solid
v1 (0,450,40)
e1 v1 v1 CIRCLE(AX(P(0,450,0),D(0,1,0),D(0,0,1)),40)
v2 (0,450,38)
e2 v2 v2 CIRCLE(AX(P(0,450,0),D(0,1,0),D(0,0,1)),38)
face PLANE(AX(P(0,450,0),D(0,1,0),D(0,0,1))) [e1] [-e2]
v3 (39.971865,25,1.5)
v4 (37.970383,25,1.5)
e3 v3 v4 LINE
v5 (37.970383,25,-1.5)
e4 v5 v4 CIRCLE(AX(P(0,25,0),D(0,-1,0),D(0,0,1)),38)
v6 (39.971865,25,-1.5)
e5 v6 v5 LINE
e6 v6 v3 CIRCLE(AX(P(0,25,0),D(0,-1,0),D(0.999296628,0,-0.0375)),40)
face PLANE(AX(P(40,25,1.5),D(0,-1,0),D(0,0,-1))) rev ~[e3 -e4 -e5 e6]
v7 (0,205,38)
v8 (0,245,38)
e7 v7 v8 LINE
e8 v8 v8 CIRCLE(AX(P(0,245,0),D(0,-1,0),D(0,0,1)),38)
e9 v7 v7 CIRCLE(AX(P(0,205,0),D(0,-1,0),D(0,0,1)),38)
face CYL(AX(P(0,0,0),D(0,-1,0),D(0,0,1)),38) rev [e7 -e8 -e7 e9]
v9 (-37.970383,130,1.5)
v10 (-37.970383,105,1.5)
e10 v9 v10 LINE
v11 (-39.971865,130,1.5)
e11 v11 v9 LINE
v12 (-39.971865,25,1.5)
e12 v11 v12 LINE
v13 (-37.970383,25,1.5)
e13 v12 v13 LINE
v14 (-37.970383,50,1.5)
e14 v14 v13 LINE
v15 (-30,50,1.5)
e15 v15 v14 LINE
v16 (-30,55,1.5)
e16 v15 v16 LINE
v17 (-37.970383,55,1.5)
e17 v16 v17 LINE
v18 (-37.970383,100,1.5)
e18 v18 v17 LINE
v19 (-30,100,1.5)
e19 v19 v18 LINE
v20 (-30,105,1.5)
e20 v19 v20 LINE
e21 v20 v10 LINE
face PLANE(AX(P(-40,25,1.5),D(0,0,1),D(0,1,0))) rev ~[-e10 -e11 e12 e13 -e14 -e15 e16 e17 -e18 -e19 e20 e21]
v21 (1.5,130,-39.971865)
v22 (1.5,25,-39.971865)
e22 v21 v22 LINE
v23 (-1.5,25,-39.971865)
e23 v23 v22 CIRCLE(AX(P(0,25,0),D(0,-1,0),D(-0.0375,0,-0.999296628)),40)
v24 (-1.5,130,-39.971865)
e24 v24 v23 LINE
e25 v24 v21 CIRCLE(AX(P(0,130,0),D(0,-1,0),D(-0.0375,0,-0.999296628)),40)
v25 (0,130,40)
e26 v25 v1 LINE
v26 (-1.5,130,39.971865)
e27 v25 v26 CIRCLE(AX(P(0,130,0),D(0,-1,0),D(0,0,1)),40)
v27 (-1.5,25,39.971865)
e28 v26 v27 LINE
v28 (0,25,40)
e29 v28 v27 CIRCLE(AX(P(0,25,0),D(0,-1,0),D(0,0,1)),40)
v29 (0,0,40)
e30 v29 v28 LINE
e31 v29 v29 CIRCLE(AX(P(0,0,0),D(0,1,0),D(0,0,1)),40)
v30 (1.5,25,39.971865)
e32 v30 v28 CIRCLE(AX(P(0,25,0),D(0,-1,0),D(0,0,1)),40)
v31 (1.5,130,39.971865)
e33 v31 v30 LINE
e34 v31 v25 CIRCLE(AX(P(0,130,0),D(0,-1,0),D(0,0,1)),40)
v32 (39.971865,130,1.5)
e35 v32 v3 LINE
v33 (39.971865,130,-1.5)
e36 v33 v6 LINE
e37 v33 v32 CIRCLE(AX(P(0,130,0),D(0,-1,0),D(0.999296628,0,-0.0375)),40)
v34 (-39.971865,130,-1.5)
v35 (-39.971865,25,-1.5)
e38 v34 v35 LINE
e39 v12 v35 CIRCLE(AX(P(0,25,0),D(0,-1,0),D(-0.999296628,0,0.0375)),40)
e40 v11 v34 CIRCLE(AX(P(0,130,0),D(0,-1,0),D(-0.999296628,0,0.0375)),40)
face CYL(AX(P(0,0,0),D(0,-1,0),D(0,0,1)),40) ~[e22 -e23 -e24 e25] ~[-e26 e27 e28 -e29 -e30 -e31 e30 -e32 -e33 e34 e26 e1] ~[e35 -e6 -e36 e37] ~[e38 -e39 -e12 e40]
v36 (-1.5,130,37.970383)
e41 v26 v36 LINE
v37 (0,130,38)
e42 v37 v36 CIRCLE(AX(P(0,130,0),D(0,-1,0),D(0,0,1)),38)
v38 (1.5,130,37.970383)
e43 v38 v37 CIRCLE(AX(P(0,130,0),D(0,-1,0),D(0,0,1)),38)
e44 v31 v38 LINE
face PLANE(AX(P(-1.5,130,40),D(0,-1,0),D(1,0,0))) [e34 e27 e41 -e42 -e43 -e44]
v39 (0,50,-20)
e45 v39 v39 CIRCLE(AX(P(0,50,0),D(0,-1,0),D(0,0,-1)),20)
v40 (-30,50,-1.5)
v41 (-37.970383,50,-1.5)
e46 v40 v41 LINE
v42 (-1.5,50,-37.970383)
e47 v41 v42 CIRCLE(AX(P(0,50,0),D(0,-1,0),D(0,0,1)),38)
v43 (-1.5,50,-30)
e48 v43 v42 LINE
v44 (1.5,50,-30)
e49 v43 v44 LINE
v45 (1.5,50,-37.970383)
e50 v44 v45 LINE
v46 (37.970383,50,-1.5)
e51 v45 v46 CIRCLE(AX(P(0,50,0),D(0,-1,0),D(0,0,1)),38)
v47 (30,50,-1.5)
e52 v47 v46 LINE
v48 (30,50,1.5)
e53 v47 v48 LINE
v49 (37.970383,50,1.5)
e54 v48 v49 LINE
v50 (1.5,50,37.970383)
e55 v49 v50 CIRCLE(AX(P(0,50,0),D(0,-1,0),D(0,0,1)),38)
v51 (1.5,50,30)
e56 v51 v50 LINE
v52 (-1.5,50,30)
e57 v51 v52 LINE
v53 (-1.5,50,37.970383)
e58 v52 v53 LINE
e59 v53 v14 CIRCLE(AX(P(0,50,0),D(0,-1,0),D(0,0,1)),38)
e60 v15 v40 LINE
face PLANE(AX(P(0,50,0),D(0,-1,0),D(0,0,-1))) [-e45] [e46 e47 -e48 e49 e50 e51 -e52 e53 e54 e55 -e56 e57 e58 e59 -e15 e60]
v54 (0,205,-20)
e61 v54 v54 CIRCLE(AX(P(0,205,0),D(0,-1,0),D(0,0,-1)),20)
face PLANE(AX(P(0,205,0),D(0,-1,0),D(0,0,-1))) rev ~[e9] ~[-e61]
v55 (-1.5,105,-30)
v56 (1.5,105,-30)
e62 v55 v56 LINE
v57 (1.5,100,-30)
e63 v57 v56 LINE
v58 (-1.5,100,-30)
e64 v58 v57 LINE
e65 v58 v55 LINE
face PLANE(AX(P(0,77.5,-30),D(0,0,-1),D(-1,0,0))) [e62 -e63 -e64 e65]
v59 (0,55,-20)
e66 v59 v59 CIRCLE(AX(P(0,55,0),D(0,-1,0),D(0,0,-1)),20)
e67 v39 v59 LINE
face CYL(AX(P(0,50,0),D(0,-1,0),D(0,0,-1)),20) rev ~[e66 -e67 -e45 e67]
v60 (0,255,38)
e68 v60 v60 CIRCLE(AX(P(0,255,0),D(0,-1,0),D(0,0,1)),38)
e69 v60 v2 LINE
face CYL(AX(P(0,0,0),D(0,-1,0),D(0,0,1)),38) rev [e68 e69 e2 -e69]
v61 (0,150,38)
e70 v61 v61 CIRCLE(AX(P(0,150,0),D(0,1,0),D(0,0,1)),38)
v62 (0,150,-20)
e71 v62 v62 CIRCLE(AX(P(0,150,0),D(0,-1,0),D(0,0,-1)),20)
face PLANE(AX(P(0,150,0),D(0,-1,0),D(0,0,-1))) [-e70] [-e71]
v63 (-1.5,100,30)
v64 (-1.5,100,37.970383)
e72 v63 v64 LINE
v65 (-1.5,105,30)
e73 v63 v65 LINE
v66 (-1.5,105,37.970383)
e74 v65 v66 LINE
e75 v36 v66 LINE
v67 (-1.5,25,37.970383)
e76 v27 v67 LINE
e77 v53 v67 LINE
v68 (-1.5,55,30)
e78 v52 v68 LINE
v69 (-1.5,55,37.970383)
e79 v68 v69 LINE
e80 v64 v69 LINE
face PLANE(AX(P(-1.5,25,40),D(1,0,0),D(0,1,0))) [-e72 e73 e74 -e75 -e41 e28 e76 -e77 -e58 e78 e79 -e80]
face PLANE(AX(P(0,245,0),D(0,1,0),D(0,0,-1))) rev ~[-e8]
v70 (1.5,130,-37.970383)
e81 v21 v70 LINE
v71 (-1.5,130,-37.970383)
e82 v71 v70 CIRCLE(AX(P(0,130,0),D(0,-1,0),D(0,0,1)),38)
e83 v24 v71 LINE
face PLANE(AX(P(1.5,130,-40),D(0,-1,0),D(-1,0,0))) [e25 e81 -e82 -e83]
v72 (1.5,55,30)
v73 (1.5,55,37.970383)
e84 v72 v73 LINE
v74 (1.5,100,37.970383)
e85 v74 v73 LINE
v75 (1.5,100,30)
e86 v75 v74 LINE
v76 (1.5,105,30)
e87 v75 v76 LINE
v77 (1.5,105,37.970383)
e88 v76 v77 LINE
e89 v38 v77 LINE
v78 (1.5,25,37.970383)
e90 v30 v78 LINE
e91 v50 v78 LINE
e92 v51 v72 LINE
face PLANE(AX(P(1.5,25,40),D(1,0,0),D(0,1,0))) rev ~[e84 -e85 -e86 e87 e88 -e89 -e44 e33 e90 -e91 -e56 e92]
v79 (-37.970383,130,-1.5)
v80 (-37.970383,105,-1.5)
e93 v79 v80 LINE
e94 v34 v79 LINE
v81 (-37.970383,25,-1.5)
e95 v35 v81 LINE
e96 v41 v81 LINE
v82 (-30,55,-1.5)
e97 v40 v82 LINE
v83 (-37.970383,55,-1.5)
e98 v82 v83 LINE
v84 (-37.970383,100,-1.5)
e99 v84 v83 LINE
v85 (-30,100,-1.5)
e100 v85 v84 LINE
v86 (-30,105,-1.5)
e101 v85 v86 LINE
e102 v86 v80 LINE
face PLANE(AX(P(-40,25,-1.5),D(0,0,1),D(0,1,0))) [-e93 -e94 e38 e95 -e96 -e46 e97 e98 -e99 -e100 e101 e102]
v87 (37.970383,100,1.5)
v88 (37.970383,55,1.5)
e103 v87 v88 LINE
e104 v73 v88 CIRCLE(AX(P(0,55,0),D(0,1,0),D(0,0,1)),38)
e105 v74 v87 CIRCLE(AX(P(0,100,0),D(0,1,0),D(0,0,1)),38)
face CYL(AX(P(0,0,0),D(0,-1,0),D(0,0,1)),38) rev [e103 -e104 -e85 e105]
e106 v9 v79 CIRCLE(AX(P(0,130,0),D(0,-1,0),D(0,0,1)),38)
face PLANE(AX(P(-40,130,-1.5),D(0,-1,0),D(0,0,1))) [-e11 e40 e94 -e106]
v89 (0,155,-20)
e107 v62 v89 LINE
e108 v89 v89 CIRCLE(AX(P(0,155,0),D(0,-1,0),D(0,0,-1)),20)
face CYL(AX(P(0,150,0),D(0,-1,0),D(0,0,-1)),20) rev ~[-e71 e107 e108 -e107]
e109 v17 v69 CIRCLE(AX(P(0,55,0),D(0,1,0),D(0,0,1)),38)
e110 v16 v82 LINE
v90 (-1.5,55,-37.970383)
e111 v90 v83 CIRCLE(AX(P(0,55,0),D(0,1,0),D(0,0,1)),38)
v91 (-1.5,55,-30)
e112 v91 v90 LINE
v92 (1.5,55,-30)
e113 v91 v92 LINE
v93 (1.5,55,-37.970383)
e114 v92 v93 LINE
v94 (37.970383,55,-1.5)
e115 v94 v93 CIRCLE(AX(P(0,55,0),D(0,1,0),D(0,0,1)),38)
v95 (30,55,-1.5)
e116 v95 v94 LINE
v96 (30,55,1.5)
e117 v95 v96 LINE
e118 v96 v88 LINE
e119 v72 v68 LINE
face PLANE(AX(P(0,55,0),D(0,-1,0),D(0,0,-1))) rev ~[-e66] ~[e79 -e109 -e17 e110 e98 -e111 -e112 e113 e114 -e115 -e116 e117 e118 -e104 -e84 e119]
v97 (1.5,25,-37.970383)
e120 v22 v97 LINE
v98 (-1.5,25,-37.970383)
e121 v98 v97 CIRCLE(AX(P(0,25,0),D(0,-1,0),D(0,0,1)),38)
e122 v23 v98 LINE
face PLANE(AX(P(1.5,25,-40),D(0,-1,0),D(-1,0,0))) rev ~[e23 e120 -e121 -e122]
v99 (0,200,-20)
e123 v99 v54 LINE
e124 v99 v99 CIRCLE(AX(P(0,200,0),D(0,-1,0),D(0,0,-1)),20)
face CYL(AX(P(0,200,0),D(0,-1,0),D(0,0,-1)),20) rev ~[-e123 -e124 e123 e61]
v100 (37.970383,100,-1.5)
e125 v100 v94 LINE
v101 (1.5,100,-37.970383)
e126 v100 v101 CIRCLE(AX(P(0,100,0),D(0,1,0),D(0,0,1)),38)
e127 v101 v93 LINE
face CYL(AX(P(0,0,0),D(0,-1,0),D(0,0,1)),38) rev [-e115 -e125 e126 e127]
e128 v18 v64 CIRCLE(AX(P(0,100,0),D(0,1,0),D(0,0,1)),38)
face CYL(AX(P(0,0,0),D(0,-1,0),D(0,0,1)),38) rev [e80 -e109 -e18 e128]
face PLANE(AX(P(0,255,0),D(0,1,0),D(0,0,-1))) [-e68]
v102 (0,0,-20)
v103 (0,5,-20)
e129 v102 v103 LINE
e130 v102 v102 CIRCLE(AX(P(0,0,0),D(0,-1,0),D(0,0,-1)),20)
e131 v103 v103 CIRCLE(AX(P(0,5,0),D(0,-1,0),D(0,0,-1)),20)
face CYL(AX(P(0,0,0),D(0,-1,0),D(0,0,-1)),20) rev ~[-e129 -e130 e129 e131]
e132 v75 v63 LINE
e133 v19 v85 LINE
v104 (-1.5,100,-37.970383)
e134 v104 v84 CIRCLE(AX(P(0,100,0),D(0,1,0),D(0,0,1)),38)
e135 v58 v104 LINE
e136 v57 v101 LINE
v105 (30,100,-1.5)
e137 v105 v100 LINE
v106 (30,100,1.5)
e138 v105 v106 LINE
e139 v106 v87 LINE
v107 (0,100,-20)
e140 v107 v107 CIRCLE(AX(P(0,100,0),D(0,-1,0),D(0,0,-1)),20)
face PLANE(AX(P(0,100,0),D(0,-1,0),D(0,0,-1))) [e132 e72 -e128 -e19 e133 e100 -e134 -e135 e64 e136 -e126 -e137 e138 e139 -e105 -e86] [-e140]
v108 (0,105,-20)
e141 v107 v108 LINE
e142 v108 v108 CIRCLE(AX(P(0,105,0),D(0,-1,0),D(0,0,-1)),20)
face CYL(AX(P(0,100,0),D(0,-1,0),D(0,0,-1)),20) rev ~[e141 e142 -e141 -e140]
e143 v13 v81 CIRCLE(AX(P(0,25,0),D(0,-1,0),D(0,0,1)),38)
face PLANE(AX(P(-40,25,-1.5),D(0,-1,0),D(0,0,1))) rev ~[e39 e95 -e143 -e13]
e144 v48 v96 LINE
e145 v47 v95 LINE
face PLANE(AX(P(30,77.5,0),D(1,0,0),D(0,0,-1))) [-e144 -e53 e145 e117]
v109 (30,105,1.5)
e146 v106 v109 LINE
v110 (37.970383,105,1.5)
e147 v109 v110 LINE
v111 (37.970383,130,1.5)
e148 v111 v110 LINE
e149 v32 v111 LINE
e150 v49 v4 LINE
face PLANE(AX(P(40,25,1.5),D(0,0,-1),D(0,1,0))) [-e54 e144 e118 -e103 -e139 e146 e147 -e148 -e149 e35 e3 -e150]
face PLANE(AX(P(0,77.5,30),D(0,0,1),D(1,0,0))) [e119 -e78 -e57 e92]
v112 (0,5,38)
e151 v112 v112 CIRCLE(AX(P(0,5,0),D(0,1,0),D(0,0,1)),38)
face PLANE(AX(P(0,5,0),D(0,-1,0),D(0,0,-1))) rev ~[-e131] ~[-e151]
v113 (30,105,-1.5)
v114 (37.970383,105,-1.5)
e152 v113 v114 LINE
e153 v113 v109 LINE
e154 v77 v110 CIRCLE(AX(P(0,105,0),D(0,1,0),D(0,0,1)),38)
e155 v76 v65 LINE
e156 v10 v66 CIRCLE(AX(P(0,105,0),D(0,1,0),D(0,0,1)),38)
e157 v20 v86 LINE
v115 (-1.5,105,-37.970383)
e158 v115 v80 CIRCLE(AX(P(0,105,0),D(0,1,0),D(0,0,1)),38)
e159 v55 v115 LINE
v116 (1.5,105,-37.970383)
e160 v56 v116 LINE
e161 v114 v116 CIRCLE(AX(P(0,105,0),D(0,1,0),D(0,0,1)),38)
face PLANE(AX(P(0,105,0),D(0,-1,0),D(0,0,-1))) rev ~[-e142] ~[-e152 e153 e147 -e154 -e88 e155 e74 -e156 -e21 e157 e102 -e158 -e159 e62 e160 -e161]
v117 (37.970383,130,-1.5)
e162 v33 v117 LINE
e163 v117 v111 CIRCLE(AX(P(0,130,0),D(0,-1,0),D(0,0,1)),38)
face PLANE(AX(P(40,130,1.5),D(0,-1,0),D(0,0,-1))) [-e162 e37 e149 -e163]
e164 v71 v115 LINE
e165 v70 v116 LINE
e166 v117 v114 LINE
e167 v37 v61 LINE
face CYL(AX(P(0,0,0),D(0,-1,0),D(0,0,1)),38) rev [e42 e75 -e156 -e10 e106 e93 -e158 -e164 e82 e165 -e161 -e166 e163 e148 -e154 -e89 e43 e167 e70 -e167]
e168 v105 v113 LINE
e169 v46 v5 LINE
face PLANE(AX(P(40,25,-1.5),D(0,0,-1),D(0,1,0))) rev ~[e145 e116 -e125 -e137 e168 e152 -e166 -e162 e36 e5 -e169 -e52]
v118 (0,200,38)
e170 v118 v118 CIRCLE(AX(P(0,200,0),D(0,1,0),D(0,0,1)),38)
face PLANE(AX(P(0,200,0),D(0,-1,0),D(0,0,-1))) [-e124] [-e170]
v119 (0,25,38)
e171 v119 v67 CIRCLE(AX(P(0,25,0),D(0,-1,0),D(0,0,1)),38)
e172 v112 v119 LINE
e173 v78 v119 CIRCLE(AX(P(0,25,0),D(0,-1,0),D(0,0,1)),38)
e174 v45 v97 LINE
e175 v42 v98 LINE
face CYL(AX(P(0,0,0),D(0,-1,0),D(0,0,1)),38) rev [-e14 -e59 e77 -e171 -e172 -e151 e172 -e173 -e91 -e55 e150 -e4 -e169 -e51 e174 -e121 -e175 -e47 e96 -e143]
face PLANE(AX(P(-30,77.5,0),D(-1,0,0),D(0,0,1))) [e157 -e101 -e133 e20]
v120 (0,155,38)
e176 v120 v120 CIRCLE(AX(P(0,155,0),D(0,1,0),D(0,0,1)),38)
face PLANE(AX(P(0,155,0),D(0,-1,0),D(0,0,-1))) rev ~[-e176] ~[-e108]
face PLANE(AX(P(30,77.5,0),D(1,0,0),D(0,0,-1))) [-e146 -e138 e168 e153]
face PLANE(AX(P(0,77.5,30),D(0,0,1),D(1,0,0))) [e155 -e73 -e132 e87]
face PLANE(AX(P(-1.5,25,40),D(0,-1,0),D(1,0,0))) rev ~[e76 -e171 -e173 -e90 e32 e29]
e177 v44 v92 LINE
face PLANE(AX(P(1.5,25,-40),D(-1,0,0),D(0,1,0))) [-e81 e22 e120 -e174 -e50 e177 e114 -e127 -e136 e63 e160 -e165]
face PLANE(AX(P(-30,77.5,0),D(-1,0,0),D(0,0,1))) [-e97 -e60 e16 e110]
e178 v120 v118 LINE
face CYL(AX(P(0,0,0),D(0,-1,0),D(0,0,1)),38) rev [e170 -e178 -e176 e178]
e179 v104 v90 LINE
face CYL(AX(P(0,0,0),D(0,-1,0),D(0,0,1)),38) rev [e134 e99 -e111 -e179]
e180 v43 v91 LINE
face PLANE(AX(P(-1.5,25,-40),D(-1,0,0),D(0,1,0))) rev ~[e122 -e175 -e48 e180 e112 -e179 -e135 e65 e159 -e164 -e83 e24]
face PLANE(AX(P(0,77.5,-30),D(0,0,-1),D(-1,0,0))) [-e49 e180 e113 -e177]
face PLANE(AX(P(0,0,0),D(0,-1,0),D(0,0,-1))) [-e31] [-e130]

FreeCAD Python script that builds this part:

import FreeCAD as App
import Part
import Sketcher
from FreeCAD import Vector
Q = App.Units.Quantity


def add_polygon(sketch, points):
    """Adds a closed chain of lines whose ends are joined by coincident constraints."""
    first, n = sketch.GeometryCount, len(points)
    for a, b in zip(points, points[1:] + points[:1]):
        sketch.addGeometry(Part.LineSegment(App.Vector(*a, 0), App.Vector(*b, 0)), False)
    for i in range(n):
        sketch.addConstraint(Sketcher.Constraint("Coincident", first + i, 2, first + (i + 1) % n, 1))

doc = App.newDocument("Part")
body = doc.addObject("PartDesign::Body", "Body")

sketch1 = body.newObject("Sketcher::SketchObject", "Sketch")
sketch1.AttachmentSupport = (doc.getObject("XZ_Plane"), [""])
sketch1.MapMode = "FlatFace"
sketch1.addGeometry([
    Part.Circle(Vector(0, 0, 0), Vector(0, 0, 1), 40),
    Part.Circle(Vector(0, 0, 0), Vector(0, 0, 1), 38),
], False)
sketch1.addConstraint([
    Sketcher.Constraint("Coincident", 0, 3, -1, 1),
    Sketcher.Constraint("Coincident", 1, 3, -1, 1),
    Sketcher.Constraint("Diameter", 0, Q("80 mm")),
    Sketcher.Constraint("Diameter", 1, Q("76 mm")),
])
pad1 = body.newObject("PartDesign::Pad", "Pad")
pad1.Profile = sketch1
pad1.Length = 450
pad1.Reversed = True

sketch2 = body.newObject("Sketcher::SketchObject", "Sketch001")
sketch2.AttachmentSupport = (doc.getObject("XZ_Plane"), [""])
sketch2.MapMode = "FlatFace"
sketch2.addGeometry([
    Part.Circle(Vector(0, 0, 0), Vector(0, 0, 1), 38),
    Part.Circle(Vector(0, 0, 0), Vector(0, 0, 1), 20),
], False)
sketch2.addConstraint([
    Sketcher.Constraint("Coincident", 0, 3, -1, 1),
    Sketcher.Constraint("Coincident", 1, 3, -1, 1),
    Sketcher.Constraint("Diameter", 0, Q("76 mm")),
    Sketcher.Constraint("Diameter", 1, Q("40 mm")),
])
pad2 = body.newObject("PartDesign::Pad", "Pad001")
pad2.Profile = sketch2
pad2.Length = 5
pad2.Reversed = True
doc.recompute()

linearpattern = body.newObject("PartDesign::LinearPattern", "LinearPattern")
linearpattern.Originals = [pad2]
linearpattern.Direction = (doc.getObject("Y_Axis"), [""])
linearpattern.Mode = "offset"
linearpattern.Offset = 50
linearpattern.Occurrences = 5
body.Tip = linearpattern

sketch3 = body.newObject("Sketcher::SketchObject", "Sketch002")
sketch3.AttachmentSupport = (doc.getObject("XZ_Plane"), [""])
sketch3.MapMode = "FlatFace"
sketch3.AttachmentOffset = App.Placement(Vector(0, 0, -245), App.Rotation())
sketch3.addGeometry(Part.Circle(Vector(0, 0, 0), Vector(0, 0, 1), 38), False)
sketch3.addConstraint([
    Sketcher.Constraint("Coincident", 0, 3, -1, 1),
    Sketcher.Constraint("Diameter", 0, Q("76 mm")),
])
pad3 = body.newObject("PartDesign::Pad", "Pad002")
pad3.Profile = sketch3
pad3.Length = 10
pad3.Reversed = True

sketch4 = body.newObject("Sketcher::SketchObject", "Sketch003")
sketch4.AttachmentSupport = (doc.getObject("YZ_Plane"), [""])
sketch4.MapMode = "FlatFace"
sketch4.AttachmentOffset = App.Placement(Vector(0, 0, -40), App.Rotation())
add_polygon(sketch4, [(130, -1.5), (25, -1.5), (25, 1.5), (130, 1.5)])
sketch4.addConstraint([
    Sketcher.Constraint("Horizontal", 0),
    Sketcher.Constraint("Vertical", 1),
    Sketcher.Constraint("Horizontal", 2),
    Sketcher.Constraint("Vertical", 3),
    Sketcher.Constraint("DistanceX", 0, 2, 0, 1, Q("105 mm")),
    Sketcher.Constraint("DistanceY", 1, 1, 1, 2, Q("3 mm")),
    Sketcher.Constraint("DistanceX", -1, 1, 0, 2, Q("25 mm")),
    Sketcher.Constraint("DistanceY", 0, 2, -1, 1, Q("1.5 mm")),
])
pocket1 = body.newObject("PartDesign::Pocket", "Pocket")
pocket1.Profile = sketch4
pocket1.Length = 10
pocket1.Reversed = True
doc.recompute()

polarpattern = body.newObject("PartDesign::PolarPattern", "PolarPattern")
polarpattern.Originals = [pocket1]
polarpattern.Axis = (doc.getObject("Y_Axis"), [""])
polarpattern.Angle = 360
polarpattern.Occurrences = 4
body.Tip = polarpattern

doc.recompute()
